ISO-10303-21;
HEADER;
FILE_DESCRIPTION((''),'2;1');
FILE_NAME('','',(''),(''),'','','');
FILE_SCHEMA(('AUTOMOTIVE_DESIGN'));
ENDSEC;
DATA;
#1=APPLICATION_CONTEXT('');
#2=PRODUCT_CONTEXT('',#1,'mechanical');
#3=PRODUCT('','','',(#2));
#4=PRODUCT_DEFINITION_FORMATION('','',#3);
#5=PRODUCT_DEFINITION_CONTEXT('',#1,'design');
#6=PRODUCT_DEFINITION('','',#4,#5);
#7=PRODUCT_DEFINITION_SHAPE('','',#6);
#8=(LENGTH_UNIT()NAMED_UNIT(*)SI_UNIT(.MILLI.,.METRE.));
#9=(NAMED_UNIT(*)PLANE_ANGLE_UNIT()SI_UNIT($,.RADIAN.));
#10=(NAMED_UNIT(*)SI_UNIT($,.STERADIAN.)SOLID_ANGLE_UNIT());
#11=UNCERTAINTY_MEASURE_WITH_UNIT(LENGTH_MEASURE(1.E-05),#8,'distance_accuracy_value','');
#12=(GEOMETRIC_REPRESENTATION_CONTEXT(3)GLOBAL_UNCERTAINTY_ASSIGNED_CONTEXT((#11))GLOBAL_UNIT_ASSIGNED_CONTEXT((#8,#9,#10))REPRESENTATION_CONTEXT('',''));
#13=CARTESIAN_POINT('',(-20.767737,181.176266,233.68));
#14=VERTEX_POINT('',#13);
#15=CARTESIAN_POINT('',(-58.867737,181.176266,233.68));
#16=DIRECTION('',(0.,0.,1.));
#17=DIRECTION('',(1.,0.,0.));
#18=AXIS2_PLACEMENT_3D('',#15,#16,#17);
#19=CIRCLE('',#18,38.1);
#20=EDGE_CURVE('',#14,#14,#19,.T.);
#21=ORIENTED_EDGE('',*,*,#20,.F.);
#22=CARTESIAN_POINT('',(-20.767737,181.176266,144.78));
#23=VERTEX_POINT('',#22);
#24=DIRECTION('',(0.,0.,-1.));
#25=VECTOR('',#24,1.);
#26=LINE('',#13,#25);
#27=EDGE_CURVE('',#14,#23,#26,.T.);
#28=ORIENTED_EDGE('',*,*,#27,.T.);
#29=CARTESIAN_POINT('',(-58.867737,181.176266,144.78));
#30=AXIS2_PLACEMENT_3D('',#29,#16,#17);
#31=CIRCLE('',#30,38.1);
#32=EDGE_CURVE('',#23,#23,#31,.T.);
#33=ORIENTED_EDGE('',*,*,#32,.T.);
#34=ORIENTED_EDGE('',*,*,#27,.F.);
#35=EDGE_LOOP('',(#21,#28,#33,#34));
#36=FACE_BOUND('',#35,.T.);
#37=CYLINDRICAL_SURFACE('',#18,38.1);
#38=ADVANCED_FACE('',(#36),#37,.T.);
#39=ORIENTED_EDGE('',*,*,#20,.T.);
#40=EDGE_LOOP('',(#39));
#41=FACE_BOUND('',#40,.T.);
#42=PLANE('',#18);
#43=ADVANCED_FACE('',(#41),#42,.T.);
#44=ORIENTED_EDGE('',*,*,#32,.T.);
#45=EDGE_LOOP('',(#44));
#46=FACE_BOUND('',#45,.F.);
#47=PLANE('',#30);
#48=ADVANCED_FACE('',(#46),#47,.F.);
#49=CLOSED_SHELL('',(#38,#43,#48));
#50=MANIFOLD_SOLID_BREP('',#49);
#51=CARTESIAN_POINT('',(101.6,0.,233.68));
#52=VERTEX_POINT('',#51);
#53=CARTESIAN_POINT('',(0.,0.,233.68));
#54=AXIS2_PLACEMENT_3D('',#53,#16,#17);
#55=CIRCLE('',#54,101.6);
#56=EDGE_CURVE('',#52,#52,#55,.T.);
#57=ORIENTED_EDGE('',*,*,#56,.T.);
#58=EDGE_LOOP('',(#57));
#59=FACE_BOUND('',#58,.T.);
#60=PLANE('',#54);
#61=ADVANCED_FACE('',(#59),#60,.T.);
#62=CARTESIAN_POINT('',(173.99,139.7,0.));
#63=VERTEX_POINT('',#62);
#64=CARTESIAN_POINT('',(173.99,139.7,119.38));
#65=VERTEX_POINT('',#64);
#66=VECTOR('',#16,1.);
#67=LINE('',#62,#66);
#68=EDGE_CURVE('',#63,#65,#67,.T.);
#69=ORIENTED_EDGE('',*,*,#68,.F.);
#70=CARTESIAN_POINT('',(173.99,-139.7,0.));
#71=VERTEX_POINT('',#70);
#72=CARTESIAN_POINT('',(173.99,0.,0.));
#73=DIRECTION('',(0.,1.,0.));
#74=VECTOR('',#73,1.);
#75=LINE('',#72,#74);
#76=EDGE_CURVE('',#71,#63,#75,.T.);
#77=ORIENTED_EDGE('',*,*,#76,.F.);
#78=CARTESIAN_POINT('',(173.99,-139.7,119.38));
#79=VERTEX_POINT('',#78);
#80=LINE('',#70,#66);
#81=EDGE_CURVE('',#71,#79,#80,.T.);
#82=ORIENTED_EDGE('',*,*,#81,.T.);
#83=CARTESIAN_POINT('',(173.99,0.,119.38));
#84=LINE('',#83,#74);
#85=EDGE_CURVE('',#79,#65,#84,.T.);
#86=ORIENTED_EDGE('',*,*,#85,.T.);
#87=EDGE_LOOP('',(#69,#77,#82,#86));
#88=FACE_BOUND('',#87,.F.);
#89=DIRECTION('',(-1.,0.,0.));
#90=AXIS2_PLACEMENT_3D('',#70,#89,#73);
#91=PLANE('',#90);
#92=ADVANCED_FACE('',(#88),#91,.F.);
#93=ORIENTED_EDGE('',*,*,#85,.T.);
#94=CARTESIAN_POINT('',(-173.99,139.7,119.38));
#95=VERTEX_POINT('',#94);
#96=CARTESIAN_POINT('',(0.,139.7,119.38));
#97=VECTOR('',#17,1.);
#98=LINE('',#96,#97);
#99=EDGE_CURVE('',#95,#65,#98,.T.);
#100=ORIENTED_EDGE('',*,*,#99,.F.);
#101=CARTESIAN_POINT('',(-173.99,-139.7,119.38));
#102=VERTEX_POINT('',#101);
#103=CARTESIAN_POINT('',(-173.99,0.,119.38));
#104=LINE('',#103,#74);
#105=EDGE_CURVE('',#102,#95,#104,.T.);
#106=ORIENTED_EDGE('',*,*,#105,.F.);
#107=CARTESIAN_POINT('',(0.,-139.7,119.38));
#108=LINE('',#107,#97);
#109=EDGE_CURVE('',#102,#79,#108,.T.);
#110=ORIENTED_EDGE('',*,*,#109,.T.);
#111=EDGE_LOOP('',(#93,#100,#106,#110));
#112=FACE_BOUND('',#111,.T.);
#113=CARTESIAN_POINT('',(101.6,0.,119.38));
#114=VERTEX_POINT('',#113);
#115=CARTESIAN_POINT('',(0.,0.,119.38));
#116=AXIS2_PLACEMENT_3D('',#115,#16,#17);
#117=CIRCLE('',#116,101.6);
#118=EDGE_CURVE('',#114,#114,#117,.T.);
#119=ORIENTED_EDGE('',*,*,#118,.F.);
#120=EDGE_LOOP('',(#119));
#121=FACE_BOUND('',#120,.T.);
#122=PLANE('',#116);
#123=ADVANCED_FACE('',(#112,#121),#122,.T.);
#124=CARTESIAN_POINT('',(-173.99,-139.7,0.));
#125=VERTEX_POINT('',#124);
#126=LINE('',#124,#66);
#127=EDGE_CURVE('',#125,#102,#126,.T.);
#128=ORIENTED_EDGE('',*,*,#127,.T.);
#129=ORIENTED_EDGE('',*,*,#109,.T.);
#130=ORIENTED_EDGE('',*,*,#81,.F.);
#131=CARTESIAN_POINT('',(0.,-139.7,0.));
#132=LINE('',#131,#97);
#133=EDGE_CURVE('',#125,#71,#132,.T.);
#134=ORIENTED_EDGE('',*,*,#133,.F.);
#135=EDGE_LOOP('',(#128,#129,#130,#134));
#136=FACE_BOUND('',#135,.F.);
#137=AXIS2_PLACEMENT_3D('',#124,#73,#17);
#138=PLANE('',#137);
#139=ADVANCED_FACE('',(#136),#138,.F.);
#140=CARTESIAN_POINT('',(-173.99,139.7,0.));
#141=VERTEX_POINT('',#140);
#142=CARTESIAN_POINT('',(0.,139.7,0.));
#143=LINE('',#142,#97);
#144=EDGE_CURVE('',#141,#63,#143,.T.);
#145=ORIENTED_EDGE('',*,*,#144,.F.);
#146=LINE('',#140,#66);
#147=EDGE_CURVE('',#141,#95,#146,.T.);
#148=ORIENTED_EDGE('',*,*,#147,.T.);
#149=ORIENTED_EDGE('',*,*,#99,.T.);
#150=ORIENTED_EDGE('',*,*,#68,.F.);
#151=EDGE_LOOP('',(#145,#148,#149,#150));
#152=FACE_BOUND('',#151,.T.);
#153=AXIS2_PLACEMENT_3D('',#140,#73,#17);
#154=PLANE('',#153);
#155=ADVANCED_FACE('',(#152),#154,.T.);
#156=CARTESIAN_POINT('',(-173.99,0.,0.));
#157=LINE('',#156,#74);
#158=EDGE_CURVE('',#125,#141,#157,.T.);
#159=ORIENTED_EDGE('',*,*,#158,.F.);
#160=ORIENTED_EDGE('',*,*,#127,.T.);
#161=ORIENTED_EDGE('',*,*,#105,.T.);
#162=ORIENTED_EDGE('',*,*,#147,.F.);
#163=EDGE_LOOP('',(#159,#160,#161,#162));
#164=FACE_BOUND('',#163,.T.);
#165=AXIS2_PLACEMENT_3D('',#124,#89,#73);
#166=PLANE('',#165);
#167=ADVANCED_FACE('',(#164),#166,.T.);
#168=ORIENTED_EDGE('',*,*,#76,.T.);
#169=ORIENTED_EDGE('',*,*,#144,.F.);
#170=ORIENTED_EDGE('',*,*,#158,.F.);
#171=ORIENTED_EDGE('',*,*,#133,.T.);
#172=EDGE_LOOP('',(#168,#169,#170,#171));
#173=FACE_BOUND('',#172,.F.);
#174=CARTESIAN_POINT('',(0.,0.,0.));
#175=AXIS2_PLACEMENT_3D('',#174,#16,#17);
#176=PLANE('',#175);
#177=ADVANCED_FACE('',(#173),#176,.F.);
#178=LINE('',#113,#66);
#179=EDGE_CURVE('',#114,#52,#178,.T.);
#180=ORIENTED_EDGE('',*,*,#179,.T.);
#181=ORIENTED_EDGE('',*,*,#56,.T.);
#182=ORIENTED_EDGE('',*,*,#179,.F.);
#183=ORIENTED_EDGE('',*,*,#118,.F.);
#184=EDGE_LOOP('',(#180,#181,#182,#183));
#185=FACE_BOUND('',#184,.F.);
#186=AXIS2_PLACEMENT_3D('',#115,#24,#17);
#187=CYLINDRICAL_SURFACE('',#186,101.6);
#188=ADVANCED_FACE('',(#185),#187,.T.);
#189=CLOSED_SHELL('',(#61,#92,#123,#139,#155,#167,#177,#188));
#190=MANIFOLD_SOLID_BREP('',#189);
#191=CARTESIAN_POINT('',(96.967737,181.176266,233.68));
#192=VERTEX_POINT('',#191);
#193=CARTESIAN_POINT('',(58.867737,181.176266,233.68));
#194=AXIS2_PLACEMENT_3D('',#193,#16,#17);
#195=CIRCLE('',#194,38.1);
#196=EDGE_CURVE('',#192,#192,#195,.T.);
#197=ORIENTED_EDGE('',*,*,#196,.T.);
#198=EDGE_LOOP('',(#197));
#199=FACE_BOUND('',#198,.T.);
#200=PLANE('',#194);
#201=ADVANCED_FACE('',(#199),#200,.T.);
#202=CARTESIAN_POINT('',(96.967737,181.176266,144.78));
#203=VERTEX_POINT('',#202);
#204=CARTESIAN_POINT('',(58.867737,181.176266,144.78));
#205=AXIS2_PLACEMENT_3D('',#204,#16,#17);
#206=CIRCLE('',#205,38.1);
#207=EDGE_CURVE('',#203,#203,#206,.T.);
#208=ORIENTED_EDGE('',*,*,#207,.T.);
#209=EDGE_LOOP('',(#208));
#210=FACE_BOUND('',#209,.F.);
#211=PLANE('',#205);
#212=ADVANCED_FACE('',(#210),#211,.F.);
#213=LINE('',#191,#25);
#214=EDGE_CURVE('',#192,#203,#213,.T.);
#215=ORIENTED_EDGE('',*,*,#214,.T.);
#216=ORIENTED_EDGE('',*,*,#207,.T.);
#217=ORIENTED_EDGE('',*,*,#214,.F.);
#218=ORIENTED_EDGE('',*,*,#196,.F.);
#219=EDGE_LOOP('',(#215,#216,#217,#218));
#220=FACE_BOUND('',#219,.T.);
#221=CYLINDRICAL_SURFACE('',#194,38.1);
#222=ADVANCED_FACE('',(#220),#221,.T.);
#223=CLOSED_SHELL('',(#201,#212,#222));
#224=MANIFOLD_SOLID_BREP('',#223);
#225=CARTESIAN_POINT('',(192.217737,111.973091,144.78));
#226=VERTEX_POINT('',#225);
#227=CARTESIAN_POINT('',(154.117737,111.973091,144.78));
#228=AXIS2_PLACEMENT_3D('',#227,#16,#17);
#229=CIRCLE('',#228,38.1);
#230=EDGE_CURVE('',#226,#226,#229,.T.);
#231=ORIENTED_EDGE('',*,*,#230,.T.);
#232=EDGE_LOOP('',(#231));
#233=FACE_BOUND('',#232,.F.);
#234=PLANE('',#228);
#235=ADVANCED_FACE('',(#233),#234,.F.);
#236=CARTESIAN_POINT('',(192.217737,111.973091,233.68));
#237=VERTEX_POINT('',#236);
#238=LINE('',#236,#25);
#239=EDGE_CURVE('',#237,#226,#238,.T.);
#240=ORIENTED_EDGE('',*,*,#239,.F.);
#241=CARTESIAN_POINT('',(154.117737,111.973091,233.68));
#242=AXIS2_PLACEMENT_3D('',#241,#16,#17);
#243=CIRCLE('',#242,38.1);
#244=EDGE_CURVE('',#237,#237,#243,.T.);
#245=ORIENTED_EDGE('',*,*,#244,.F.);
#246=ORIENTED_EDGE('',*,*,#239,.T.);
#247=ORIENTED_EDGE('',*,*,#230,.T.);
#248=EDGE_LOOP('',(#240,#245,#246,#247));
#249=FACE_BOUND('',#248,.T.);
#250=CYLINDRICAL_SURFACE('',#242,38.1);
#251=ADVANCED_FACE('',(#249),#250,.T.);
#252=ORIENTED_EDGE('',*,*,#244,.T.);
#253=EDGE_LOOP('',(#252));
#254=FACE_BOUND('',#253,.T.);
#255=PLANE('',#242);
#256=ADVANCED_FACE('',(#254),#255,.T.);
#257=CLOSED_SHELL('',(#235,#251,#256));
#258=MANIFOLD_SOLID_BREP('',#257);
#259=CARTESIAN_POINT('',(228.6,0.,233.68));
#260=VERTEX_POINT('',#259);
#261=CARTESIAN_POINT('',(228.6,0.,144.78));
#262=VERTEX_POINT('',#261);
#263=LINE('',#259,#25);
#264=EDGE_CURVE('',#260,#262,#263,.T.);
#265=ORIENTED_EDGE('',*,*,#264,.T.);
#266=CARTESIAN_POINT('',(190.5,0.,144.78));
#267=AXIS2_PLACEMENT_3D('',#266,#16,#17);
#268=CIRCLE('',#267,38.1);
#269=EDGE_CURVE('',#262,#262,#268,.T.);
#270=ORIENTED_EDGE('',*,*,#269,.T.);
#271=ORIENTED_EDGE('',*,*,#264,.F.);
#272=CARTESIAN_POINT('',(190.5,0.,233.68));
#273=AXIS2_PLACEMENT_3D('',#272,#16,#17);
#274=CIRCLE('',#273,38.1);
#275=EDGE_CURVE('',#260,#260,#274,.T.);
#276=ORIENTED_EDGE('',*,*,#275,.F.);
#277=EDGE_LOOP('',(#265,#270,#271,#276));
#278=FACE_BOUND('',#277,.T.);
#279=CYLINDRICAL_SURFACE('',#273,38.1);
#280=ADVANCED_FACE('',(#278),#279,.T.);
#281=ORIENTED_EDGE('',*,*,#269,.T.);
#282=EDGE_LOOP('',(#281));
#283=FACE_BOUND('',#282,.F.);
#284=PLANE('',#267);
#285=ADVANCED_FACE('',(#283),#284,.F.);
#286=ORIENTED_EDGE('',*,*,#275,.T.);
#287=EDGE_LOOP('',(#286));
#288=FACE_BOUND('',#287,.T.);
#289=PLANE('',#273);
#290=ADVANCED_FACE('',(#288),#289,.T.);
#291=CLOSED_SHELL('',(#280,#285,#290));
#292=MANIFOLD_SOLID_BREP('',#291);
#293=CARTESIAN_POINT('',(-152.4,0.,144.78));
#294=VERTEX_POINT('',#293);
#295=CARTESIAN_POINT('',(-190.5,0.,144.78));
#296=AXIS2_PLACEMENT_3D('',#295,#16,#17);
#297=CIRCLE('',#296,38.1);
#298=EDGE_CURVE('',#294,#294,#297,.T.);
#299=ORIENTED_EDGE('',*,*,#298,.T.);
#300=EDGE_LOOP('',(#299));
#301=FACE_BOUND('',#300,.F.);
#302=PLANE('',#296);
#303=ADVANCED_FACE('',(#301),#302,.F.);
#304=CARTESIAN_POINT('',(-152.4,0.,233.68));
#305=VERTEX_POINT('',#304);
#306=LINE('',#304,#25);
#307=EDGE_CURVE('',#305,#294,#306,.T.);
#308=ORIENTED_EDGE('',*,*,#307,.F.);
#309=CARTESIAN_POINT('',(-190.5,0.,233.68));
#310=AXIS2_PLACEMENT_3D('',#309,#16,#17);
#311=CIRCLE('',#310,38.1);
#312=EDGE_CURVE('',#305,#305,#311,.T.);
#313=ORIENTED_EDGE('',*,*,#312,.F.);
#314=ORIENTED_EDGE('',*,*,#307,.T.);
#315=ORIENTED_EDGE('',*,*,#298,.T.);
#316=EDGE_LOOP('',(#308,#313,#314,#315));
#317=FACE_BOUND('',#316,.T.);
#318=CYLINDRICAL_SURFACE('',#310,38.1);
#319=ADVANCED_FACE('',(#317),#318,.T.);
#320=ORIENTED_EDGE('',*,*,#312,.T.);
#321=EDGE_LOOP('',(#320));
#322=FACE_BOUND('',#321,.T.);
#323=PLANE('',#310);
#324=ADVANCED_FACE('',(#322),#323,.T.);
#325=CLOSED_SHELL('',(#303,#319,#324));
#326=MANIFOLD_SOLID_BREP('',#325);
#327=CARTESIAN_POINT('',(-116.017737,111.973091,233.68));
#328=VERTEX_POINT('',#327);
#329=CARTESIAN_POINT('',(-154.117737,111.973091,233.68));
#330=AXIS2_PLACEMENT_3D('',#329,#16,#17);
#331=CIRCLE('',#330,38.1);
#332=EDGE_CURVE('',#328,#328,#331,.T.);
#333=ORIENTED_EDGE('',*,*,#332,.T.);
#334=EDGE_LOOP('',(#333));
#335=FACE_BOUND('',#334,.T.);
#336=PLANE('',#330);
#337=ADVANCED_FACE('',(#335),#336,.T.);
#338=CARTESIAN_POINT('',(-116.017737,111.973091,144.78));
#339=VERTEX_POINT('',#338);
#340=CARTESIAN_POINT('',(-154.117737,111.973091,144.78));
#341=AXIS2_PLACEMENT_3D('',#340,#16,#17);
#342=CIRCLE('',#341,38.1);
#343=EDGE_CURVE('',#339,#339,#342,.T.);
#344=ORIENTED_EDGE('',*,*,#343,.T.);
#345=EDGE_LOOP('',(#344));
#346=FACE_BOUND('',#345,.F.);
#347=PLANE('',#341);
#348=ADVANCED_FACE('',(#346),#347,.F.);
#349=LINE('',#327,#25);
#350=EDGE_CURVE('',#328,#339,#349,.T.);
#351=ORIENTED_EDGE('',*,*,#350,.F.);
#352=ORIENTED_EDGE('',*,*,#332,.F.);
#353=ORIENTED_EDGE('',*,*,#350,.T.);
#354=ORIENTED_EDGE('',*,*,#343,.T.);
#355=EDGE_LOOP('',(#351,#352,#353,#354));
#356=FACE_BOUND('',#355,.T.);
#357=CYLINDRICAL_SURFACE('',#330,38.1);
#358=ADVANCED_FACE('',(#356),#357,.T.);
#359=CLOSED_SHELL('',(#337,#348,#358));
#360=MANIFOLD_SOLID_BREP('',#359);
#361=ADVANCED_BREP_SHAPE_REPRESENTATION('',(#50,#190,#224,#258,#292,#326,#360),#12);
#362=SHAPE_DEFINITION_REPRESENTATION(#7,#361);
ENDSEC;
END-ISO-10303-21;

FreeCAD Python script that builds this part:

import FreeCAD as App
import Part
import Sketcher
from FreeCAD import Vector
Q = App.Units.Quantity

doc = App.newDocument("Part")
params = doc.addObject("Spreadsheet::Sheet", "Params")
for row, (alias, value) in enumerate([
    ("sketch1_height", "11 in"),
    ("sketch1_width", "13.7 in"),
    ("pad1_length", "4.7 in"),
    ("sketch2_diameter", "8 in"),
    ("pad2_length", "4.5 in"),
    ("sketch3_diameter", "3 in"),
    ("pad3_length", "3.5 in"),
], start=1):
    params.set(f"A{row}", alias)
    params.set(f"B{row}", "=" + value)
    params.setAlias(f"B{row}", alias)

body = doc.addObject("PartDesign::Body", "Body")

sketch1 = doc.addObject("Sketcher::SketchObject", "Sketch")
body.addObject(sketch1)
sketch1.AttachmentSupport = (doc.XY_Plane, [""])
sketch1.MapMode = "FlatFace"
sketch1.addGeometry([
    Part.LineSegment(Vector(-173.99, 139.7, 0), Vector(-173.99, -139.7, 0)),
    Part.LineSegment(Vector(-173.99, -139.7, 0), Vector(173.99, -139.7, 0)),
    Part.LineSegment(Vector(173.99, -139.7, 0), Vector(173.99, 139.7, 0)),
    Part.LineSegment(Vector(173.99, 139.7, 0), Vector(-173.99, 139.7, 0)),
], False)
sketch1.addConstraint([
    Sketcher.Constraint("Coincident", 0, 2, 1, 1),
    Sketcher.Constraint("Coincident", 1, 2, 2, 1),
    Sketcher.Constraint("Coincident", 2, 2, 3, 1),
    Sketcher.Constraint("Coincident", 3, 2, 0, 1),
    Sketcher.Constraint("Vertical", 0),
    Sketcher.Constraint("Horizontal", 1),
    Sketcher.Constraint("Vertical", 2),
    Sketcher.Constraint("Horizontal", 3),
    Sketcher.Constraint("Symmetric", 0, 2, 2, 2, -1, 1),
    Sketcher.Constraint("DistanceY", 0, 2, 0, 1, Q("11 in")),
    Sketcher.Constraint("DistanceX", 1, 1, 1, 2, Q("13.7 in")),
])
sketch1.setExpression("Constraints[9]", "Params.sketch1_height")
sketch1.setExpression("Constraints[10]", "Params.sketch1_width")
pad1 = doc.addObject("PartDesign::Pad", "Pad")
body.addObject(pad1)
pad1.Profile = sketch1
pad1.setExpression("Length", "Params.pad1_length")

sketch2 = doc.addObject("Sketcher::SketchObject", "Sketch001")
body.addObject(sketch2)
sketch2.AttachmentSupport = (doc.XY_Plane, [""])
sketch2.MapMode = "FlatFace"
sketch2.AttachmentOffset = App.Placement(Vector(0, 0, 4.7 * 25.4), App.Rotation())
sketch2.addGeometry(Part.Circle(Vector(0, 0, 0), Vector(0, 0, 1), 101.6), False)
sketch2.addConstraint([
    Sketcher.Constraint("Coincident", 0, 3, -1, 1),
    Sketcher.Constraint("Diameter", 0, Q("8 in")),
])
sketch2.setExpression("Constraints[1]", "Params.sketch2_diameter")
pad2 = doc.addObject("PartDesign::Pad", "Pad001")
body.addObject(pad2)
pad2.Profile = sketch2
pad2.setExpression("Length", "Params.pad2_length")
body2 = doc.addObject("PartDesign::Body", "Body001")
body2.AllowCompound = True

sketch3 = doc.addObject("Sketcher::SketchObject", "Sketch002")
body2.addObject(sketch3)
sketch3.AttachmentSupport = (doc.getObject("XY_Plane001"), [""])
sketch3.MapMode = "FlatFace"
sketch3.AttachmentOffset = App.Placement(Vector(0, 0, 9.2 * 25.4), App.Rotation())
sketch3.addGeometry([
    Part.Circle(Vector(-190.5, 0, 0), Vector(0, 0, 1), 38.1),
    Part.Circle(Vector(-154.117737, 111.973091, 0), Vector(0, 0, 1), 38.1),
    Part.Circle(Vector(-58.867737, 181.176266, 0), Vector(0, 0, 1), 38.1),
    Part.Circle(Vector(58.867737, 181.176266, 0), Vector(0, 0, 1), 38.1),
    Part.Circle(Vector(154.117737, 111.973091, 0), Vector(0, 0, 1), 38.1),
    Part.Circle(Vector(190.5, 0, 0), Vector(0, 0, 1), 38.1),
], False)
sketch3.addConstraint([
    Sketcher.Constraint("Equal", 0, 1),
    Sketcher.Constraint("Equal", 1, 2),
    Sketcher.Constraint("Equal", 2, 3),
    Sketcher.Constraint("Equal", 3, 4),
    Sketcher.Constraint("Equal", 4, 5),
    Sketcher.Constraint("Symmetric", 0, 3, 5, 3, -1, 1),
    Sketcher.Constraint("Symmetric", 2, 3, 3, 3, -2),
    Sketcher.Constraint("Symmetric", 1, 3, 4, 3, -2),
    Sketcher.Constraint("PointOnObject", 0, 3, -1),
    Sketcher.Constraint("Diameter", 0, Q("3 in")),
    Sketcher.Constraint("DistanceX", 0, 3, 5, 3, Q("15 in")),
    Sketcher.Constraint("DistanceX", 1, 3, 2, 3, Q("3.75 in")),
    Sketcher.Constraint("DistanceY", -1, 1, 1, 3, Q("111.973091 mm")),
    Sketcher.Constraint("DistanceX", 1, 3, -1, 1, Q("154.117737 mm")),
    Sketcher.Constraint("DistanceY", -1, 1, 2, 3, Q("181.176266 mm")),
])
sketch3.setExpression("Constraints[9]", "Params.sketch3_diameter")
pad3 = doc.addObject("PartDesign::Pad", "Pad002")
body2.addObject(pad3)
pad3.Profile = sketch3
pad3.setExpression("Length", "Params.pad3_length")
pad3.Reversed = True

doc.recompute()
